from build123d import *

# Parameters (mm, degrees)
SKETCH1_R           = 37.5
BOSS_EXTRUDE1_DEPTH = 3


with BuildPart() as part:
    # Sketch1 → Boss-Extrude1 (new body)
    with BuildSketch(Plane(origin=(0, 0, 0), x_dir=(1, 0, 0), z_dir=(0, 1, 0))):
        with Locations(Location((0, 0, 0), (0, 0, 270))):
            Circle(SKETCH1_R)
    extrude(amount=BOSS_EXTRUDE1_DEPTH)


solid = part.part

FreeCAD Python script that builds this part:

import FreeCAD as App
import Part
import Sketcher
Q = App.Units.Quantity

doc = App.newDocument("Part")
body = doc.addObject("PartDesign::Body", "Body")

sketch1 = body.newObject("Sketcher::SketchObject", "Sketch")
sketch1.AttachmentSupport = (doc.getObject("XZ_Plane"), [""])
sketch1.MapMode = "FlatFace"
sketch1.addGeometry(Part.Circle(App.Vector(0, 0, 0), App.Vector(0, 0, 1), 38), False)
sketch1.addConstraint([
    Sketcher.Constraint("Coincident", 0, 3, -1, 1),
    Sketcher.Constraint("Diameter", 0, Q("75 mm")),
])
pad1 = body.newObject("PartDesign::Pad", "Pad")
pad1.Profile = sketch1
pad1.Length = 3
pad1.Reversed = True

doc.recompute()
